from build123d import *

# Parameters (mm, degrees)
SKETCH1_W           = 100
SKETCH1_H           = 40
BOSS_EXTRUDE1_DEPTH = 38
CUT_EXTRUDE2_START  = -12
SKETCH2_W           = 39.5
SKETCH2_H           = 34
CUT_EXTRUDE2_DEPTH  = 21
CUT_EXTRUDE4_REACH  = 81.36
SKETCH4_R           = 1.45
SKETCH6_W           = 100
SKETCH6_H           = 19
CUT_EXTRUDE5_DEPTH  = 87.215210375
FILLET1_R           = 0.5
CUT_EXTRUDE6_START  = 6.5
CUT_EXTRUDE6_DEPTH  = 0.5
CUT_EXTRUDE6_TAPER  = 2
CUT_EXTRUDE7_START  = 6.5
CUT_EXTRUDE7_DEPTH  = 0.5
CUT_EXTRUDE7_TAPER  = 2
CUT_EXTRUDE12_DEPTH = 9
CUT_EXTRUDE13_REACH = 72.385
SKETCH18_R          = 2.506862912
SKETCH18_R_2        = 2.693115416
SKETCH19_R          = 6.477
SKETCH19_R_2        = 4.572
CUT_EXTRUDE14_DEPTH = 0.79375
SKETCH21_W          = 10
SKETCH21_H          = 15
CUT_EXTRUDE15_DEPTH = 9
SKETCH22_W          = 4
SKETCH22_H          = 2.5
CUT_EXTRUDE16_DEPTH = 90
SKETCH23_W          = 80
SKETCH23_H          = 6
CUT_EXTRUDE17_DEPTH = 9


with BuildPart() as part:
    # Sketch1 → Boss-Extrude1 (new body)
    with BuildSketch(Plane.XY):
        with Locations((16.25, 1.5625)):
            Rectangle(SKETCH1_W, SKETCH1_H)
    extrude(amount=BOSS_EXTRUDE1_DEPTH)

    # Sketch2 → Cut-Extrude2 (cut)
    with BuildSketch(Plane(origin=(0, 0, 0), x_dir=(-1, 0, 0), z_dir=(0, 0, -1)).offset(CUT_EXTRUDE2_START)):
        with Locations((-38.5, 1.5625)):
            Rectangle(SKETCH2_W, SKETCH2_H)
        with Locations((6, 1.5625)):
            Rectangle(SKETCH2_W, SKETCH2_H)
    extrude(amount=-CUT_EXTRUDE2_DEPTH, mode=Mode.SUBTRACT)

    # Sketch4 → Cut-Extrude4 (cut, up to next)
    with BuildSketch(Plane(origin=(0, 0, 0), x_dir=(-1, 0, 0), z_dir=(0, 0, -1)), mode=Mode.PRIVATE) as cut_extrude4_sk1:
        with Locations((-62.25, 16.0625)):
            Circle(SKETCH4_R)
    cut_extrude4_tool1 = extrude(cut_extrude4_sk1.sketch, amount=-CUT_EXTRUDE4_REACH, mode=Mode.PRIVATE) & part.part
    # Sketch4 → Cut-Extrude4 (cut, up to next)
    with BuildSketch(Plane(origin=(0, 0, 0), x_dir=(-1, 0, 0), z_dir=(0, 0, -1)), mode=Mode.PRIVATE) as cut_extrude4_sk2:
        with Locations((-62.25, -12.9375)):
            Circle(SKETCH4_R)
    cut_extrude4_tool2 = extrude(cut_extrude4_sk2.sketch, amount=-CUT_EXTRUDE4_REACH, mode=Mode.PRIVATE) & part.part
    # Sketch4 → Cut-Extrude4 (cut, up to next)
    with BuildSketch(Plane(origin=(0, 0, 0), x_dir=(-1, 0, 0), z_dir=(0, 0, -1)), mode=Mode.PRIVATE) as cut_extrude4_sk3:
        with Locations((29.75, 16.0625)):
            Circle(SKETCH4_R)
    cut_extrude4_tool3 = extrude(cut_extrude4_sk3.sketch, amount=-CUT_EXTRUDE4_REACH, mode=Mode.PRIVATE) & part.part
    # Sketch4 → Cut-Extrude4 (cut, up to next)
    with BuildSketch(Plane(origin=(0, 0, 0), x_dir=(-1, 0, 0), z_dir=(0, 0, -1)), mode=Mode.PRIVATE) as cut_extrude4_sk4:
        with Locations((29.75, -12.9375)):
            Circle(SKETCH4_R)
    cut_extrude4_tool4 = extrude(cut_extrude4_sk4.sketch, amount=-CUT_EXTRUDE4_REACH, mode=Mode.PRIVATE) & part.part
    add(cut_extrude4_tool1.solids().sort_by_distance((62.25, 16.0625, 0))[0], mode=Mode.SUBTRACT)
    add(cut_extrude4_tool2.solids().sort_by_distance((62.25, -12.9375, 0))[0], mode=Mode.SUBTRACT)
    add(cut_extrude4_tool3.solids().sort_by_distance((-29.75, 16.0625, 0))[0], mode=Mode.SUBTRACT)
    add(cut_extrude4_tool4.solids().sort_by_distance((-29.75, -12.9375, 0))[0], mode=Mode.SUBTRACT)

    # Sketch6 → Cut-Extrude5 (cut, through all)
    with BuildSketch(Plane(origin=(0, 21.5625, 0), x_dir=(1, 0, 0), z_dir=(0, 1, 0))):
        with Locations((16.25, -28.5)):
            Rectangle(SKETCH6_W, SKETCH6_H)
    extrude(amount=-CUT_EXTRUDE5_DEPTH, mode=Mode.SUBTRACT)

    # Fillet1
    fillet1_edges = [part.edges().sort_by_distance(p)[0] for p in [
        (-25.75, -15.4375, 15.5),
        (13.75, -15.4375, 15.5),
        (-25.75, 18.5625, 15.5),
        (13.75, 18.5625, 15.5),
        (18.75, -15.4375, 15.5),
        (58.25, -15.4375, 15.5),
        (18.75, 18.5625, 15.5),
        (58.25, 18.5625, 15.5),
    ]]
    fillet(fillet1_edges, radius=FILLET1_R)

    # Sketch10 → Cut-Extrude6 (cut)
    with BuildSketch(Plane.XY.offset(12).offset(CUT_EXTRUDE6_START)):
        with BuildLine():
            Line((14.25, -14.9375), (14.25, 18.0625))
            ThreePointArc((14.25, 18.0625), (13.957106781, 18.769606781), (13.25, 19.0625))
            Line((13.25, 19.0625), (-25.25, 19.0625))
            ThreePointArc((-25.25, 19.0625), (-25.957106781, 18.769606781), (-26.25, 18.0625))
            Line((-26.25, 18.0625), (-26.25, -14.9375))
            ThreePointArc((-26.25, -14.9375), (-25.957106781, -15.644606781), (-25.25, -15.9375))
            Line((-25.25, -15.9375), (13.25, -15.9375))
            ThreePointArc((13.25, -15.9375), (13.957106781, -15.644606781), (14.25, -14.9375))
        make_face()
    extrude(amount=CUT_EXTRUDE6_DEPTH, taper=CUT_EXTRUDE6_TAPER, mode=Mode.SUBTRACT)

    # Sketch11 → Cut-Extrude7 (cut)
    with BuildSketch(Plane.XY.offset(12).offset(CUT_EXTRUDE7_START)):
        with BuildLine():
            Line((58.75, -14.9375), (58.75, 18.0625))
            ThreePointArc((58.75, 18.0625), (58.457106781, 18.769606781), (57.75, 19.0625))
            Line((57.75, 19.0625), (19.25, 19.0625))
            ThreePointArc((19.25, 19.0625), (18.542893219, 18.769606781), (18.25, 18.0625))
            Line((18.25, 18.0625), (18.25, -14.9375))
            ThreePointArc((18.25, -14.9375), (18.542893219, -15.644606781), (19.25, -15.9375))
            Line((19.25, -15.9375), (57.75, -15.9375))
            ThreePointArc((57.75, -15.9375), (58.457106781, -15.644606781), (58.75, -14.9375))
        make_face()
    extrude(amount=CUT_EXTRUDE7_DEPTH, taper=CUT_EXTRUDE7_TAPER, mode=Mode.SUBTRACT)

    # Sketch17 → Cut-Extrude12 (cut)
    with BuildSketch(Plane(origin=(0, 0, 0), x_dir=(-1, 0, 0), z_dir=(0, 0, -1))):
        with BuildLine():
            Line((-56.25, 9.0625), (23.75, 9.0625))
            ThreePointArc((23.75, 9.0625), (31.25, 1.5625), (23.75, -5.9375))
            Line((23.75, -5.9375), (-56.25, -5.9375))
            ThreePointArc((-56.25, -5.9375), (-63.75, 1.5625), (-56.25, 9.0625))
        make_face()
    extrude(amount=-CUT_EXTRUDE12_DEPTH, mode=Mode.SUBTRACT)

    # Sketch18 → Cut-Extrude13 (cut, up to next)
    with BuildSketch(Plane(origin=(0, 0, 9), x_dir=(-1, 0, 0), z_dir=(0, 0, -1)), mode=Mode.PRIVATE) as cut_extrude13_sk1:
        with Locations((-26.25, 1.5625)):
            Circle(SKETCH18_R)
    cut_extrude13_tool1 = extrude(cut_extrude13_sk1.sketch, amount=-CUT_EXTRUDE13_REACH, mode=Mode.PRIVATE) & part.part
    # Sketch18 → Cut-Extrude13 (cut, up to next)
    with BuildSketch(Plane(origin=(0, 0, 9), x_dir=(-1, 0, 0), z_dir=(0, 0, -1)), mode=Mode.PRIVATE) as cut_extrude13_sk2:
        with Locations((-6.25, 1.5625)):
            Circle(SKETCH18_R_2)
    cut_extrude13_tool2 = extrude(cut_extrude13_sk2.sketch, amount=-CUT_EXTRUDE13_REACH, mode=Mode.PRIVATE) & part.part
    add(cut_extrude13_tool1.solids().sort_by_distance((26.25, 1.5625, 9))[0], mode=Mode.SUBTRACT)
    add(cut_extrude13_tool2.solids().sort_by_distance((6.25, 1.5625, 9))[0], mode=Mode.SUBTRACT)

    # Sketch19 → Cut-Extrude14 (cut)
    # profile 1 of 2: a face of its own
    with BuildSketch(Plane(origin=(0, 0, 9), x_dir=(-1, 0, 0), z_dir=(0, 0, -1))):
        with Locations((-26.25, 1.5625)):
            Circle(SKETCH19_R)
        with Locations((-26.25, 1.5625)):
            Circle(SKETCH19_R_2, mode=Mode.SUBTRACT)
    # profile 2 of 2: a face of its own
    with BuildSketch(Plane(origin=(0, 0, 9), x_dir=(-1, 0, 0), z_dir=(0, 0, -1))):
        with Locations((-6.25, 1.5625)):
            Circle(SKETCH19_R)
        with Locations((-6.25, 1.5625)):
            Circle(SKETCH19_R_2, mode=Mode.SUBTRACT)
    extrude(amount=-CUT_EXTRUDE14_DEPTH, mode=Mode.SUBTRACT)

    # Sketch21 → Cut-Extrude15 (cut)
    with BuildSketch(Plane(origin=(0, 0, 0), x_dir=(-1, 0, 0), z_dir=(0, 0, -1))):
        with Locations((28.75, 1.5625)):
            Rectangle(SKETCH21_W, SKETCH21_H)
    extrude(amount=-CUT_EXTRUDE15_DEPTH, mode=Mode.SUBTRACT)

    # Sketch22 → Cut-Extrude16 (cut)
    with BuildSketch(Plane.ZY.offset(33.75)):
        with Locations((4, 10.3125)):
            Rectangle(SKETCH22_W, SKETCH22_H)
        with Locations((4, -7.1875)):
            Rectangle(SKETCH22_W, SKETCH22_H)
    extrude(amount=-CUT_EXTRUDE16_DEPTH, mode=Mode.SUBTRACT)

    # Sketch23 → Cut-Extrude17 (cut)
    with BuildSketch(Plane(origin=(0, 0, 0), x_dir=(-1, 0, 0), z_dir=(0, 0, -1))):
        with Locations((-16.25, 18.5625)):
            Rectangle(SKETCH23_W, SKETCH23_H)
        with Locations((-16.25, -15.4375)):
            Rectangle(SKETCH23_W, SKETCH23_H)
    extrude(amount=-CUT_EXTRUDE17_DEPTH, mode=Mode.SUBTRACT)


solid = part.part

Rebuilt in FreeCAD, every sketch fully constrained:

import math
import FreeCAD as App
import Part
import Sketcher
Q = App.Units.Quantity


def edges_at(feature, points):
    """Names of the edges that pass closest to the given points."""
    edges = feature.Shape.Edges
    near = lambda p: min(range(len(edges)), key=lambda i: edges[i].distToShape(Part.Vertex(*p))[0])
    return sorted({f"Edge{near(p) + 1}" for p in points})


def add_polygon(sketch, points):
    """Adds a closed chain of lines whose ends are joined by coincident constraints."""
    first, n = sketch.GeometryCount, len(points)
    for a, b in zip(points, points[1:] + points[:1]):
        sketch.addGeometry(Part.LineSegment(App.Vector(*a, 0), App.Vector(*b, 0)), False)
    for i in range(n):
        sketch.addConstraint(Sketcher.Constraint("Coincident", first + i, 2, first + (i + 1) % n, 1))

doc = App.newDocument("Part")
body = doc.addObject("PartDesign::Body", "Body")

# Sketch on XY plane
sketch1 = body.newObject("Sketcher::SketchObject", "Sketch")
sketch1.AttachmentSupport = (doc.getObject("XY_Plane"), [""])
sketch1.MapMode = "FlatFace"
add_polygon(sketch1, [(-33.75, 21.5625), (-33.75, -18.4375), (66.25, -18.4375), (66.25, 21.5625)])  # lines 0-3
sketch1.addConstraint(Sketcher.Constraint("Vertical", 0))
sketch1.addConstraint(Sketcher.Constraint("Horizontal", 1))
sketch1.addConstraint(Sketcher.Constraint("Vertical", 2))
sketch1.addConstraint(Sketcher.Constraint("Horizontal", 3))
sketch1.addConstraint(Sketcher.Constraint("DistanceX", 1, 1, 1, 2, Q("100 mm")))
sketch1.addConstraint(Sketcher.Constraint("DistanceY", 0, 2, 0, 1, Q("40 mm")))
sketch1.addConstraint(Sketcher.Constraint("DistanceX", 0, 2, -1, 1, Q("33.75 mm")))
sketch1.addConstraint(Sketcher.Constraint("DistanceY", 0, 2, -1, 1, Q("18.4375 mm")))
pad1 = body.newObject("PartDesign::Pad", "Pad")
pad1.Profile = sketch1
pad1.Length = 38

# Sketch on XY plane
sketch2 = body.newObject("Sketcher::SketchObject", "Sketch001")
sketch2.AttachmentSupport = (doc.getObject("XY_Plane"), [""])
sketch2.MapMode = "FlatFace"
sketch2.AttachmentOffset = App.Placement(App.Vector(0, 0, 12), App.Rotation())
add_polygon(sketch2, [(58.25, 18.5625), (58.25, -15.4375), (18.75, -15.4375), (18.75, 18.5625)])  # lines 0-3
add_polygon(sketch2, [(13.75, 18.5625), (13.75, -15.4375), (-25.75, -15.4375), (-25.75, 18.5625)])  # lines 4-7
sketch2.addConstraint(Sketcher.Constraint("Vertical", 0))
sketch2.addConstraint(Sketcher.Constraint("Horizontal", 1))
sketch2.addConstraint(Sketcher.Constraint("Vertical", 2))
sketch2.addConstraint(Sketcher.Constraint("Horizontal", 3))
sketch2.addConstraint(Sketcher.Constraint("Vertical", 4))
sketch2.addConstraint(Sketcher.Constraint("Horizontal", 5))
sketch2.addConstraint(Sketcher.Constraint("Vertical", 6))
sketch2.addConstraint(Sketcher.Constraint("Horizontal", 7))
sketch2.addConstraint(Sketcher.Constraint("Horizontal", 1, 2, 4, 2))
sketch2.addConstraint(Sketcher.Constraint("Horizontal", 3, 2, 6, 2))
sketch2.addConstraint(Sketcher.Constraint("Equal", 3, 5))
sketch2.addConstraint(Sketcher.Constraint("DistanceY", 0, 2, 0, 1, Q("34 mm")))
sketch2.addConstraint(Sketcher.Constraint("DistanceX", 1, 2, 1, 1, Q("39.5 mm")))
sketch2.addConstraint(Sketcher.Constraint("DistanceX", 4, 2, 1, 2, Q("5 mm")))
sketch2.addConstraint(Sketcher.Constraint("DistanceX", -1, 1, 0, 2, Q("58.25 mm")))
sketch2.addConstraint(Sketcher.Constraint("DistanceY", 0, 2, -1, 1, Q("15.4375 mm")))
pocket1 = body.newObject("PartDesign::Pocket", "Pocket")
pocket1.Profile = sketch2
pocket1.Length = 21
pocket1.Reversed = True

# Sketch on XY plane
sketch3 = body.newObject("Sketcher::SketchObject", "Sketch002")
sketch3.AttachmentSupport = (doc.getObject("XY_Plane"), [""])
sketch3.MapMode = "FlatFace"
sketch3.addGeometry(Part.Circle(App.Vector(62.25, 16.0625, 0), App.Vector(0, 0, 1), 1.45), False)
sketch3.addConstraint(Sketcher.Constraint("Diameter", 0, Q("2.9 mm")))
sketch3.addConstraint(Sketcher.Constraint("DistanceX", -1, 1, 0, 3, Q("62.25 mm")))
sketch3.addConstraint(Sketcher.Constraint("DistanceY", -1, 1, 0, 3, Q("16.0625 mm")))
pocket2 = body.newObject("PartDesign::Pocket", "Pocket001")
pocket2.Profile = sketch3
pocket2.Type = "UpToFirst"
pocket2.Reversed = True

# Sketch on XY plane
sketch4 = body.newObject("Sketcher::SketchObject", "Sketch003")
sketch4.AttachmentSupport = (doc.getObject("XY_Plane"), [""])
sketch4.MapMode = "FlatFace"
sketch4.addGeometry(Part.Circle(App.Vector(62.25, -12.9375, 0), App.Vector(0, 0, 1), 1.45), False)
sketch4.addConstraint(Sketcher.Constraint("Diameter", 0, Q("2.9 mm")))
sketch4.addConstraint(Sketcher.Constraint("DistanceX", -1, 1, 0, 3, Q("62.25 mm")))
sketch4.addConstraint(Sketcher.Constraint("DistanceY", 0, 3, -1, 1, Q("12.9375 mm")))
pocket3 = body.newObject("PartDesign::Pocket", "Pocket002")
pocket3.Profile = sketch4
pocket3.Type = "UpToFirst"
pocket3.Reversed = True

# Sketch on XY plane
sketch5 = body.newObject("Sketcher::SketchObject", "Sketch004")
sketch5.AttachmentSupport = (doc.getObject("XY_Plane"), [""])
sketch5.MapMode = "FlatFace"
sketch5.addGeometry(Part.Circle(App.Vector(-29.75, 16.0625, 0), App.Vector(0, 0, 1), 1.45), False)
sketch5.addConstraint(Sketcher.Constraint("Diameter", 0, Q("2.9 mm")))
sketch5.addConstraint(Sketcher.Constraint("DistanceX", 0, 3, -1, 1, Q("29.75 mm")))
sketch5.addConstraint(Sketcher.Constraint("DistanceY", -1, 1, 0, 3, Q("16.0625 mm")))
pocket4 = body.newObject("PartDesign::Pocket", "Pocket003")
pocket4.Profile = sketch5
pocket4.Type = "UpToFirst"
pocket4.Reversed = True

# Sketch on XY plane
sketch6 = body.newObject("Sketcher::SketchObject", "Sketch005")
sketch6.AttachmentSupport = (doc.getObject("XY_Plane"), [""])
sketch6.MapMode = "FlatFace"
sketch6.addGeometry(Part.Circle(App.Vector(-29.75, -12.9375, 0), App.Vector(0, 0, 1), 1.45), False)
sketch6.addConstraint(Sketcher.Constraint("Diameter", 0, Q("2.9 mm")))
sketch6.addConstraint(Sketcher.Constraint("DistanceX", 0, 3, -1, 1, Q("29.75 mm")))
sketch6.addConstraint(Sketcher.Constraint("DistanceY", 0, 3, -1, 1, Q("12.9375 mm")))
pocket5 = body.newObject("PartDesign::Pocket", "Pocket004")
pocket5.Profile = sketch6
pocket5.Type = "UpToFirst"
pocket5.Reversed = True

# Sketch on XZ plane
sketch7 = body.newObject("Sketcher::SketchObject", "Sketch006")
sketch7.AttachmentSupport = (doc.getObject("XZ_Plane"), [""])
sketch7.MapMode = "FlatFace"
sketch7.AttachmentOffset = App.Placement(App.Vector(0, 0, -21.5625), App.Rotation())
add_polygon(sketch7, [(-33.75, 19), (-33.75, 38), (66.25, 38), (66.25, 19)])  # lines 0-3
sketch7.addConstraint(Sketcher.Constraint("Vertical", 0))
sketch7.addConstraint(Sketcher.Constraint("Horizontal", 1))
sketch7.addConstraint(Sketcher.Constraint("Vertical", 2))
sketch7.addConstraint(Sketcher.Constraint("Horizontal", 3))
sketch7.addConstraint(Sketcher.Constraint("DistanceX", 1, 1, 1, 2, Q("100 mm")))
sketch7.addConstraint(Sketcher.Constraint("DistanceY", 0, 1, 0, 2, Q("19 mm")))
sketch7.addConstraint(Sketcher.Constraint("DistanceY", -1, 1, 0, 2, Q("38 mm")))
sketch7.addConstraint(Sketcher.Constraint("DistanceX", 0, 2, -1, 1, Q("33.75 mm")))
pocket6 = body.newObject("PartDesign::Pocket", "Pocket005")
pocket6.Profile = sketch7
pocket6.Type = "ThroughAll"
pocket6.Reversed = True
doc.recompute()

fillet = body.newObject("PartDesign::Fillet", "Fillet")
fillet.Base = (pocket6, edges_at(pocket6, [
    (-25.75, -15.438, 15.5),
    (13.75, -15.438, 15.5),
    (-25.75, 18.562, 15.5),
    (13.75, 18.562, 15.5),
    (18.75, -15.438, 15.5),
    (58.25, -15.438, 15.5),
    (18.75, 18.562, 15.5),
    (58.25, 18.562, 15.5),
]))
fillet.Radius = 0.5

# Sketch on XY plane
sketch8 = body.newObject("Sketcher::SketchObject", "Sketch007")
sketch8.AttachmentSupport = (doc.getObject("XY_Plane"), [""])
sketch8.MapMode = "FlatFace"
sketch8.AttachmentOffset = App.Placement(App.Vector(0, 0, 18.5), App.Rotation())
sketch8.addGeometry(Part.LineSegment(App.Vector(14.25, -14.9375, 0), App.Vector(14.25, 18.0625, 0)), False)
sketch8.addGeometry(Part.ArcOfCircle(Part.Circle(App.Vector(13.25, 18.0625, 0), App.Vector(0, 0, 1), 1), math.radians(0), math.radians(90)), False)
sketch8.addGeometry(Part.LineSegment(App.Vector(13.25, 19.0625, 0), App.Vector(-25.25, 19.0625, 0)), False)
sketch8.addGeometry(Part.ArcOfCircle(Part.Circle(App.Vector(-25.25, 18.0625, 0), App.Vector(0, 0, 1), 1), math.radians(90), math.radians(180)), False)
sketch8.addGeometry(Part.LineSegment(App.Vector(-26.25, 18.0625, 0), App.Vector(-26.25, -14.9375, 0)), False)
sketch8.addGeometry(Part.ArcOfCircle(Part.Circle(App.Vector(-25.25, -14.9375, 0), App.Vector(0, 0, 1), 1), math.radians(-180), math.radians(-90)), False)
sketch8.addGeometry(Part.LineSegment(App.Vector(-25.25, -15.9375, 0), App.Vector(13.25, -15.9375, 0)), False)
sketch8.addGeometry(Part.ArcOfCircle(Part.Circle(App.Vector(13.25, -14.9375, 0), App.Vector(0, 0, 1), 1), math.radians(-90), math.radians(0)), False)
sketch8.addConstraint(Sketcher.Constraint("Tangent", 0, 2, 1, 1))
sketch8.addConstraint(Sketcher.Constraint("Tangent", 1, 2, 2, 1))
sketch8.addConstraint(Sketcher.Constraint("Tangent", 2, 2, 3, 1))
sketch8.addConstraint(Sketcher.Constraint("Tangent", 3, 2, 4, 1))
sketch8.addConstraint(Sketcher.Constraint("Tangent", 4, 2, 5, 1))
sketch8.addConstraint(Sketcher.Constraint("Tangent", 5, 2, 6, 1))
sketch8.addConstraint(Sketcher.Constraint("Tangent", 6, 2, 7, 1))
sketch8.addConstraint(Sketcher.Constraint("Tangent", 7, 2, 0, 1))
sketch8.addConstraint(Sketcher.Constraint("Vertical", 0))
sketch8.addConstraint(Sketcher.Constraint("Horizontal", 2))
sketch8.addConstraint(Sketcher.Constraint("Vertical", 4))
sketch8.addConstraint(Sketcher.Constraint("Horizontal", 6))
sketch8.addConstraint(Sketcher.Constraint("Equal", 1, 3))
sketch8.addConstraint(Sketcher.Constraint("Equal", 3, 5))
sketch8.addConstraint(Sketcher.Constraint("Equal", 5, 7))
sketch8.addConstraint(Sketcher.Constraint("Radius", 1, Q("1 mm")))
sketch8.addConstraint(Sketcher.Constraint("DistanceY", 0, 1, 0, 2, Q("33 mm")))
sketch8.addConstraint(Sketcher.Constraint("DistanceX", 2, 2, 2, 1, Q("38.5 mm")))
sketch8.addConstraint(Sketcher.Constraint("DistanceX", -1, 1, 1, 3, Q("13.25 mm")))
sketch8.addConstraint(Sketcher.Constraint("DistanceY", -1, 1, 1, 3, Q("18.0625 mm")))
pocket7 = body.newObject("PartDesign::Pocket", "Pocket006")
pocket7.Profile = sketch8
pocket7.Length = 0.5
pocket7.Reversed = True
pocket7.TaperAngle = -2

# Sketch on XY plane
sketch9 = body.newObject("Sketcher::SketchObject", "Sketch008")
sketch9.AttachmentSupport = (doc.getObject("XY_Plane"), [""])
sketch9.MapMode = "FlatFace"
sketch9.AttachmentOffset = App.Placement(App.Vector(0, 0, 18.5), App.Rotation())
sketch9.addGeometry(Part.LineSegment(App.Vector(58.75, -14.9375, 0), App.Vector(58.75, 18.0625, 0)), False)
sketch9.addGeometry(Part.ArcOfCircle(Part.Circle(App.Vector(57.75, 18.0625, 0), App.Vector(0, 0, 1), 1), math.radians(0), math.radians(90)), False)
sketch9.addGeometry(Part.LineSegment(App.Vector(57.75, 19.0625, 0), App.Vector(19.25, 19.0625, 0)), False)
sketch9.addGeometry(Part.ArcOfCircle(Part.Circle(App.Vector(19.25, 18.0625, 0), App.Vector(0, 0, 1), 1), math.radians(90), math.radians(180)), False)
sketch9.addGeometry(Part.LineSegment(App.Vector(18.25, 18.0625, 0), App.Vector(18.25, -14.9375, 0)), False)
sketch9.addGeometry(Part.ArcOfCircle(Part.Circle(App.Vector(19.25, -14.9375, 0), App.Vector(0, 0, 1), 1), math.radians(-180), math.radians(-90)), False)
sketch9.addGeometry(Part.LineSegment(App.Vector(19.25, -15.9375, 0), App.Vector(57.75, -15.9375, 0)), False)
sketch9.addGeometry(Part.ArcOfCircle(Part.Circle(App.Vector(57.75, -14.9375, 0), App.Vector(0, 0, 1), 1), math.radians(-90), math.radians(0)), False)
sketch9.addConstraint(Sketcher.Constraint("Tangent", 0, 2, 1, 1))
sketch9.addConstraint(Sketcher.Constraint("Tangent", 1, 2, 2, 1))
sketch9.addConstraint(Sketcher.Constraint("Tangent", 2, 2, 3, 1))
sketch9.addConstraint(Sketcher.Constraint("Tangent", 3, 2, 4, 1))
sketch9.addConstraint(Sketcher.Constraint("Tangent", 4, 2, 5, 1))
sketch9.addConstraint(Sketcher.Constraint("Tangent", 5, 2, 6, 1))
sketch9.addConstraint(Sketcher.Constraint("Tangent", 6, 2, 7, 1))
sketch9.addConstraint(Sketcher.Constraint("Tangent", 7, 2, 0, 1))
sketch9.addConstraint(Sketcher.Constraint("Vertical", 0))
sketch9.addConstraint(Sketcher.Constraint("Horizontal", 2))
sketch9.addConstraint(Sketcher.Constraint("Vertical", 4))
sketch9.addConstraint(Sketcher.Constraint("Horizontal", 6))
sketch9.addConstraint(Sketcher.Constraint("Equal", 1, 3))
sketch9.addConstraint(Sketcher.Constraint("Equal", 3, 5))
sketch9.addConstraint(Sketcher.Constraint("Equal", 5, 7))
sketch9.addConstraint(Sketcher.Constraint("Radius", 1, Q("1 mm")))
sketch9.addConstraint(Sketcher.Constraint("DistanceY", 0, 1, 0, 2, Q("33 mm")))
sketch9.addConstraint(Sketcher.Constraint("DistanceX", 2, 2, 2, 1, Q("38.5 mm")))
sketch9.addConstraint(Sketcher.Constraint("DistanceX", -1, 1, 1, 3, Q("57.75 mm")))
sketch9.addConstraint(Sketcher.Constraint("DistanceY", -1, 1, 1, 3, Q("18.0625 mm")))
pocket8 = body.newObject("PartDesign::Pocket", "Pocket007")
pocket8.Profile = sketch9
pocket8.Length = 0.5
pocket8.Reversed = True
pocket8.TaperAngle = -2

# Sketch on XY plane
sketch10 = body.newObject("Sketcher::SketchObject", "Sketch009")
sketch10.AttachmentSupport = (doc.getObject("XY_Plane"), [""])
sketch10.MapMode = "FlatFace"
sketch10.addGeometry(Part.LineSegment(App.Vector(-23.75, 9.0625, 0), App.Vector(56.25, 9.0625, 0)), False)
sketch10.addGeometry(Part.ArcOfCircle(Part.Circle(App.Vector(56.25, 1.5625, 0), App.Vector(0, 0, 1), 7.5), math.radians(-90), math.radians(90)), False)
sketch10.addGeometry(Part.LineSegment(App.Vector(56.25, -5.9375, 0), App.Vector(-23.75, -5.9375, 0)), False)
sketch10.addGeometry(Part.ArcOfCircle(Part.Circle(App.Vector(-23.75, 1.5625, 0), App.Vector(0, 0, 1), 7.5), math.radians(90), math.radians(270)), False)
sketch10.addConstraint(Sketcher.Constraint("Tangent", 0, 2, 1, 2))
sketch10.addConstraint(Sketcher.Constraint("Tangent", 1, 1, 2, 1))
sketch10.addConstraint(Sketcher.Constraint("Tangent", 2, 2, 3, 2))
sketch10.addConstraint(Sketcher.Constraint("Tangent", 3, 1, 0, 1))
sketch10.addConstraint(Sketcher.Constraint("Horizontal", 0))
sketch10.addConstraint(Sketcher.Constraint("Horizontal", 2))
sketch10.addConstraint(Sketcher.Constraint("Radius", 1, Q("7.5 mm")))
sketch10.addConstraint(Sketcher.Constraint("DistanceX", 0, 1, 0, 2, Q("80 mm")))
sketch10.addConstraint(Sketcher.Constraint("DistanceX", -1, 1, 1, 3, Q("56.25 mm")))
sketch10.addConstraint(Sketcher.Constraint("DistanceY", -1, 1, 1, 3, Q("1.5625 mm")))
pocket9 = body.newObject("PartDesign::Pocket", "Pocket008")
pocket9.Profile = sketch10
pocket9.Length = 9
pocket9.Reversed = True

# Sketch on XY plane
sketch11 = body.newObject("Sketcher::SketchObject", "Sketch010")
sketch11.AttachmentSupport = (doc.getObject("XY_Plane"), [""])
sketch11.MapMode = "FlatFace"
sketch11.AttachmentOffset = App.Placement(App.Vector(0, 0, 9), App.Rotation())
sketch11.addGeometry(Part.Circle(App.Vector(26.25, 1.5625, 0), App.Vector(0, 0, 1), 2.506863), False)
sketch11.addConstraint(Sketcher.Constraint("DistanceX", -1, 1, 0, 3, Q("26.25 mm")))
sketch11.addConstraint(Sketcher.Constraint("Diameter", 0, Q("5.013726 mm")))
sketch11.addConstraint(Sketcher.Constraint("DistanceY", -1, 1, 0, 3, Q("1.5625 mm")))
pocket10 = body.newObject("PartDesign::Pocket", "Pocket009")
pocket10.Profile = sketch11
pocket10.Type = "UpToFirst"
pocket10.Reversed = True

# Sketch on XY plane
sketch12 = body.newObject("Sketcher::SketchObject", "Sketch011")
sketch12.AttachmentSupport = (doc.getObject("XY_Plane"), [""])
sketch12.MapMode = "FlatFace"
sketch12.AttachmentOffset = App.Placement(App.Vector(0, 0, 9), App.Rotation())
sketch12.addGeometry(Part.Circle(App.Vector(6.25, 1.5625, 0), App.Vector(0, 0, 1), 2.693115), False)
sketch12.addConstraint(Sketcher.Constraint("Diameter", 0, Q("5.386231 mm")))
sketch12.addConstraint(Sketcher.Constraint("DistanceX", -1, 1, 0, 3, Q("6.25 mm")))
sketch12.addConstraint(Sketcher.Constraint("DistanceY", -1, 1, 0, 3, Q("1.5625 mm")))
pocket11 = body.newObject("PartDesign::Pocket", "Pocket010")
pocket11.Profile = sketch12
pocket11.Type = "UpToFirst"
pocket11.Reversed = True

# Sketch on XY plane
sketch13 = body.newObject("Sketcher::SketchObject", "Sketch012")
sketch13.AttachmentSupport = (doc.getObject("XY_Plane"), [""])
sketch13.MapMode = "FlatFace"
sketch13.AttachmentOffset = App.Placement(App.Vector(0, 0, 9), App.Rotation())
sketch13.addGeometry(Part.Circle(App.Vector(26.25, 1.5625, 0), App.Vector(0, 0, 1), 6.477), False)
sketch13.addGeometry(Part.Circle(App.Vector(26.25, 1.5625, 0), App.Vector(0, 0, 1), 4.572), False)
sketch13.addGeometry(Part.Circle(App.Vector(6.25, 1.5625, 0), App.Vector(0, 0, 1), 6.477), False)
sketch13.addGeometry(Part.Circle(App.Vector(6.25, 1.5625, 0), App.Vector(0, 0, 1), 4.572), False)
sketch13.addConstraint(Sketcher.Constraint("Coincident", 1, 3, 0, 3))
sketch13.addConstraint(Sketcher.Constraint("Coincident", 3, 3, 2, 3))
sketch13.addConstraint(Sketcher.Constraint("Equal", 0, 2))
sketch13.addConstraint(Sketcher.Constraint("Equal", 1, 3))
sketch13.addConstraint(Sketcher.Constraint("Horizontal", 1, 3, 2, 3))
sketch13.addConstraint(Sketcher.Constraint("Diameter", 0, Q("12.954 mm")))
sketch13.addConstraint(Sketcher.Constraint("Diameter", 1, Q("9.144 mm")))
sketch13.addConstraint(Sketcher.Constraint("DistanceX", 2, 3, 0, 3, Q("20 mm")))
sketch13.addConstraint(Sketcher.Constraint("DistanceX", -1, 1, 0, 3, Q("26.25 mm")))
sketch13.addConstraint(Sketcher.Constraint("DistanceY", -1, 1, 0, 3, Q("1.5625 mm")))
pocket12 = body.newObject("PartDesign::Pocket", "Pocket011")
pocket12.Profile = sketch13
pocket12.Length = 0.79375
pocket12.Reversed = True

# Sketch on XY plane
sketch14 = body.newObject("Sketcher::SketchObject", "Sketch013")
sketch14.AttachmentSupport = (doc.getObject("XY_Plane"), [""])
sketch14.MapMode = "FlatFace"
add_polygon(sketch14, [(-23.75, 9.0625), (-23.75, -5.9375), (-33.75, -5.9375), (-33.75, 9.0625)])  # lines 0-3
sketch14.addConstraint(Sketcher.Constraint("Vertical", 0))
sketch14.addConstraint(Sketcher.Constraint("Horizontal", 1))
sketch14.addConstraint(Sketcher.Constraint("Vertical", 2))
sketch14.addConstraint(Sketcher.Constraint("Horizontal", 3))
sketch14.addConstraint(Sketcher.Constraint("DistanceX", 1, 2, 1, 1, Q("10 mm")))
sketch14.addConstraint(Sketcher.Constraint("DistanceY", 0, 2, 0, 1, Q("15 mm")))
sketch14.addConstraint(Sketcher.Constraint("DistanceX", 0, 2, -1, 1, Q("23.75 mm")))
sketch14.addConstraint(Sketcher.Constraint("DistanceY", 0, 2, -1, 1, Q("5.9375 mm")))
pocket13 = body.newObject("PartDesign::Pocket", "Pocket012")
pocket13.Profile = sketch14
pocket13.Length = 9
pocket13.Reversed = True

# Sketch on YZ plane
sketch15 = body.newObject("Sketcher::SketchObject", "Sketch014")
sketch15.AttachmentSupport = (doc.getObject("YZ_Plane"), [""])
sketch15.MapMode = "FlatFace"
sketch15.AttachmentOffset = App.Placement(App.Vector(0, 0, -33.75), App.Rotation())
add_polygon(sketch15, [(11.5625, 2), (9.0625, 2), (9.0625, 6), (11.5625, 6)])  # lines 0-3
add_polygon(sketch15, [(-5.9375, 2), (-8.4375, 2), (-8.4375, 6), (-5.9375, 6)])  # lines 4-7
sketch15.addConstraint(Sketcher.Constraint("Horizontal", 0))
sketch15.addConstraint(Sketcher.Constraint("Vertical", 1))
sketch15.addConstraint(Sketcher.Constraint("Horizontal", 2))
sketch15.addConstraint(Sketcher.Constraint("Vertical", 3))
sketch15.addConstraint(Sketcher.Constraint("Horizontal", 4))
sketch15.addConstraint(Sketcher.Constraint("Vertical", 5))
sketch15.addConstraint(Sketcher.Constraint("Horizontal", 6))
sketch15.addConstraint(Sketcher.Constraint("Vertical", 7))
sketch15.addConstraint(Sketcher.Constraint("Horizontal", 3, 2, 4, 2))
sketch15.addConstraint(Sketcher.Constraint("Horizontal", 2, 2, 5, 2))
sketch15.addConstraint(Sketcher.Constraint("Equal", 2, 4))
sketch15.addConstraint(Sketcher.Constraint("DistanceY", 1, 1, 1, 2, Q("4 mm")))
sketch15.addConstraint(Sketcher.Constraint("DistanceX", 0, 2, 0, 1, Q("2.5 mm")))
sketch15.addConstraint(Sketcher.Constraint("DistanceY", -1, 1, 0, 2, Q("2 mm")))
sketch15.addConstraint(Sketcher.Constraint("DistanceX", 4, 2, 3, 2, Q("20 mm")))
sketch15.addConstraint(Sketcher.Constraint("DistanceX", -1, 1, 0, 2, Q("9.0625 mm")))
pocket14 = body.newObject("PartDesign::Pocket", "Pocket013")
pocket14.Profile = sketch15
pocket14.Length = 90
pocket14.Reversed = True

# Sketch on XY plane
sketch16 = body.newObject("Sketcher::SketchObject", "Sketch015")
sketch16.AttachmentSupport = (doc.getObject("XY_Plane"), [""])
sketch16.MapMode = "FlatFace"
add_polygon(sketch16, [(56.25, 21.5625), (56.25, 15.5625), (-23.75, 15.5625), (-23.75, 21.5625)])  # lines 0-3
add_polygon(sketch16, [(56.25, -12.4375), (56.25, -18.4375), (-23.75, -18.4375), (-23.75, -12.4375)])  # lines 4-7
sketch16.addConstraint(Sketcher.Constraint("Vertical", 0))
sketch16.addConstraint(Sketcher.Constraint("Horizontal", 1))
sketch16.addConstraint(Sketcher.Constraint("Vertical", 2))
sketch16.addConstraint(Sketcher.Constraint("Horizontal", 3))
sketch16.addConstraint(Sketcher.Constraint("Vertical", 4))
sketch16.addConstraint(Sketcher.Constraint("Horizontal", 5))
sketch16.addConstraint(Sketcher.Constraint("Vertical", 6))
sketch16.addConstraint(Sketcher.Constraint("Horizontal", 7))
sketch16.addConstraint(Sketcher.Constraint("Vertical", 3, 2, 4, 2))
sketch16.addConstraint(Sketcher.Constraint("Vertical", 2, 2, 5, 2))
sketch16.addConstraint(Sketcher.Constraint("Equal", 2, 4))
sketch16.addConstraint(Sketcher.Constraint("DistanceX", 1, 2, 1, 1, Q("80 mm")))
sketch16.addConstraint(Sketcher.Constraint("DistanceY", 0, 2, 0, 1, Q("6 mm")))
sketch16.addConstraint(Sketcher.Constraint("DistanceY", 4, 2, 0, 2, Q("34 mm")))
sketch16.addConstraint(Sketcher.Constraint("DistanceX", -1, 1, 0, 2, Q("56.25 mm")))
sketch16.addConstraint(Sketcher.Constraint("DistanceY", -1, 1, 0, 2, Q("15.5625 mm")))
pocket15 = body.newObject("PartDesign::Pocket", "Pocket014")
pocket15.Profile = sketch16
pocket15.Length = 9
pocket15.Reversed = True

doc.recompute()
